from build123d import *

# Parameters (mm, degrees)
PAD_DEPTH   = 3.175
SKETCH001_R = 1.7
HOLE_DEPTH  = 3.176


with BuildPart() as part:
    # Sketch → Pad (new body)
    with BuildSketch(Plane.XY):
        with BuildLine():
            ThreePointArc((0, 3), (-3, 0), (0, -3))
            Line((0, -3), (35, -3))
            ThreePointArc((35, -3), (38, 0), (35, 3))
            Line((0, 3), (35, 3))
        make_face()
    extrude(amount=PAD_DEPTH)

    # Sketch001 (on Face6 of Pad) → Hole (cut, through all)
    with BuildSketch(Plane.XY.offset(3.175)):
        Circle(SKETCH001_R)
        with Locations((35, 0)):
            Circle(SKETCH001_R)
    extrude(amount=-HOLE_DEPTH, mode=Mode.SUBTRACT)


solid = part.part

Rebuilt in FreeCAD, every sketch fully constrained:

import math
import FreeCAD as App
import Part
import Sketcher
from FreeCAD import Vector
Q = App.Units.Quantity

doc = App.newDocument("Part")
body = doc.addObject("PartDesign::Body", "Body")

# Sketch on XY plane
sketch1 = body.newObject("Sketcher::SketchObject", "Sketch")
sketch1.AttachmentSupport = (doc.getObject("XY_Plane"), [""])
sketch1.MapMode = "FlatFace"
sketch1.addGeometry(Part.ArcOfCircle(Part.Circle(Vector(0, 0, 0), Vector(0, 0, 1), 3), math.radians(90), math.radians(270)), False)
sketch1.addGeometry(Part.LineSegment(Vector(0, -3, 0), Vector(35, -3, 0)), False)
sketch1.addGeometry(Part.ArcOfCircle(Part.Circle(Vector(35, 0, 0), Vector(0, 0, 1), 3), math.radians(-90), math.radians(90)), False)
sketch1.addGeometry(Part.LineSegment(Vector(35, 3, 0), Vector(0, 3, 0)), False)
sketch1.addConstraint(Sketcher.Constraint("Tangent", 0, 2, 1, 1))
sketch1.addConstraint(Sketcher.Constraint("Tangent", 1, 2, 2, 1))
sketch1.addConstraint(Sketcher.Constraint("Tangent", 2, 2, 3, 1))
sketch1.addConstraint(Sketcher.Constraint("Tangent", 3, 2, 0, 1))
sketch1.addConstraint(Sketcher.Constraint("Horizontal", 1))
sketch1.addConstraint(Sketcher.Constraint("Horizontal", 3))
sketch1.addConstraint(Sketcher.Constraint("Coincident", 0, 3, -1, 1))
sketch1.addConstraint(Sketcher.Constraint("Radius", 0, Q("3 mm")))
sketch1.addConstraint(Sketcher.Constraint("DistanceX", 1, 1, 1, 2, Q("35 mm")))
pad1 = body.newObject("PartDesign::Pad", "Pad")
pad1.Profile = sketch1
pad1.Length = 3.175

# Sketch on XY plane
sketch2 = body.newObject("Sketcher::SketchObject", "Sketch001")
sketch2.AttachmentSupport = (doc.getObject("XY_Plane"), [""])
sketch2.MapMode = "FlatFace"
sketch2.AttachmentOffset = App.Placement(Vector(0, 0, 3.175), App.Rotation())
sketch2.addGeometry(Part.Circle(Vector(0, 0, 0), Vector(0, 0, 1), 1.7), False)
sketch2.addGeometry(Part.Circle(Vector(35, 0, 0), Vector(0, 0, 1), 1.7), False)
sketch2.addConstraint(Sketcher.Constraint("Coincident", 0, 3, -1, 1))
sketch2.addConstraint(Sketcher.Constraint("Equal", 0, 1))
sketch2.addConstraint(Sketcher.Constraint("PointOnObject", 1, 3, -1))
sketch2.addConstraint(Sketcher.Constraint("Diameter", 0, Q("3.4 mm")))
sketch2.addConstraint(Sketcher.Constraint("DistanceX", -1, 1, 1, 3, Q("35 mm")))
pocket1 = body.newObject("PartDesign::Pocket", "Pocket")
pocket1.Profile = sketch2
pocket1.Type = "ThroughAll"

doc.recompute()
